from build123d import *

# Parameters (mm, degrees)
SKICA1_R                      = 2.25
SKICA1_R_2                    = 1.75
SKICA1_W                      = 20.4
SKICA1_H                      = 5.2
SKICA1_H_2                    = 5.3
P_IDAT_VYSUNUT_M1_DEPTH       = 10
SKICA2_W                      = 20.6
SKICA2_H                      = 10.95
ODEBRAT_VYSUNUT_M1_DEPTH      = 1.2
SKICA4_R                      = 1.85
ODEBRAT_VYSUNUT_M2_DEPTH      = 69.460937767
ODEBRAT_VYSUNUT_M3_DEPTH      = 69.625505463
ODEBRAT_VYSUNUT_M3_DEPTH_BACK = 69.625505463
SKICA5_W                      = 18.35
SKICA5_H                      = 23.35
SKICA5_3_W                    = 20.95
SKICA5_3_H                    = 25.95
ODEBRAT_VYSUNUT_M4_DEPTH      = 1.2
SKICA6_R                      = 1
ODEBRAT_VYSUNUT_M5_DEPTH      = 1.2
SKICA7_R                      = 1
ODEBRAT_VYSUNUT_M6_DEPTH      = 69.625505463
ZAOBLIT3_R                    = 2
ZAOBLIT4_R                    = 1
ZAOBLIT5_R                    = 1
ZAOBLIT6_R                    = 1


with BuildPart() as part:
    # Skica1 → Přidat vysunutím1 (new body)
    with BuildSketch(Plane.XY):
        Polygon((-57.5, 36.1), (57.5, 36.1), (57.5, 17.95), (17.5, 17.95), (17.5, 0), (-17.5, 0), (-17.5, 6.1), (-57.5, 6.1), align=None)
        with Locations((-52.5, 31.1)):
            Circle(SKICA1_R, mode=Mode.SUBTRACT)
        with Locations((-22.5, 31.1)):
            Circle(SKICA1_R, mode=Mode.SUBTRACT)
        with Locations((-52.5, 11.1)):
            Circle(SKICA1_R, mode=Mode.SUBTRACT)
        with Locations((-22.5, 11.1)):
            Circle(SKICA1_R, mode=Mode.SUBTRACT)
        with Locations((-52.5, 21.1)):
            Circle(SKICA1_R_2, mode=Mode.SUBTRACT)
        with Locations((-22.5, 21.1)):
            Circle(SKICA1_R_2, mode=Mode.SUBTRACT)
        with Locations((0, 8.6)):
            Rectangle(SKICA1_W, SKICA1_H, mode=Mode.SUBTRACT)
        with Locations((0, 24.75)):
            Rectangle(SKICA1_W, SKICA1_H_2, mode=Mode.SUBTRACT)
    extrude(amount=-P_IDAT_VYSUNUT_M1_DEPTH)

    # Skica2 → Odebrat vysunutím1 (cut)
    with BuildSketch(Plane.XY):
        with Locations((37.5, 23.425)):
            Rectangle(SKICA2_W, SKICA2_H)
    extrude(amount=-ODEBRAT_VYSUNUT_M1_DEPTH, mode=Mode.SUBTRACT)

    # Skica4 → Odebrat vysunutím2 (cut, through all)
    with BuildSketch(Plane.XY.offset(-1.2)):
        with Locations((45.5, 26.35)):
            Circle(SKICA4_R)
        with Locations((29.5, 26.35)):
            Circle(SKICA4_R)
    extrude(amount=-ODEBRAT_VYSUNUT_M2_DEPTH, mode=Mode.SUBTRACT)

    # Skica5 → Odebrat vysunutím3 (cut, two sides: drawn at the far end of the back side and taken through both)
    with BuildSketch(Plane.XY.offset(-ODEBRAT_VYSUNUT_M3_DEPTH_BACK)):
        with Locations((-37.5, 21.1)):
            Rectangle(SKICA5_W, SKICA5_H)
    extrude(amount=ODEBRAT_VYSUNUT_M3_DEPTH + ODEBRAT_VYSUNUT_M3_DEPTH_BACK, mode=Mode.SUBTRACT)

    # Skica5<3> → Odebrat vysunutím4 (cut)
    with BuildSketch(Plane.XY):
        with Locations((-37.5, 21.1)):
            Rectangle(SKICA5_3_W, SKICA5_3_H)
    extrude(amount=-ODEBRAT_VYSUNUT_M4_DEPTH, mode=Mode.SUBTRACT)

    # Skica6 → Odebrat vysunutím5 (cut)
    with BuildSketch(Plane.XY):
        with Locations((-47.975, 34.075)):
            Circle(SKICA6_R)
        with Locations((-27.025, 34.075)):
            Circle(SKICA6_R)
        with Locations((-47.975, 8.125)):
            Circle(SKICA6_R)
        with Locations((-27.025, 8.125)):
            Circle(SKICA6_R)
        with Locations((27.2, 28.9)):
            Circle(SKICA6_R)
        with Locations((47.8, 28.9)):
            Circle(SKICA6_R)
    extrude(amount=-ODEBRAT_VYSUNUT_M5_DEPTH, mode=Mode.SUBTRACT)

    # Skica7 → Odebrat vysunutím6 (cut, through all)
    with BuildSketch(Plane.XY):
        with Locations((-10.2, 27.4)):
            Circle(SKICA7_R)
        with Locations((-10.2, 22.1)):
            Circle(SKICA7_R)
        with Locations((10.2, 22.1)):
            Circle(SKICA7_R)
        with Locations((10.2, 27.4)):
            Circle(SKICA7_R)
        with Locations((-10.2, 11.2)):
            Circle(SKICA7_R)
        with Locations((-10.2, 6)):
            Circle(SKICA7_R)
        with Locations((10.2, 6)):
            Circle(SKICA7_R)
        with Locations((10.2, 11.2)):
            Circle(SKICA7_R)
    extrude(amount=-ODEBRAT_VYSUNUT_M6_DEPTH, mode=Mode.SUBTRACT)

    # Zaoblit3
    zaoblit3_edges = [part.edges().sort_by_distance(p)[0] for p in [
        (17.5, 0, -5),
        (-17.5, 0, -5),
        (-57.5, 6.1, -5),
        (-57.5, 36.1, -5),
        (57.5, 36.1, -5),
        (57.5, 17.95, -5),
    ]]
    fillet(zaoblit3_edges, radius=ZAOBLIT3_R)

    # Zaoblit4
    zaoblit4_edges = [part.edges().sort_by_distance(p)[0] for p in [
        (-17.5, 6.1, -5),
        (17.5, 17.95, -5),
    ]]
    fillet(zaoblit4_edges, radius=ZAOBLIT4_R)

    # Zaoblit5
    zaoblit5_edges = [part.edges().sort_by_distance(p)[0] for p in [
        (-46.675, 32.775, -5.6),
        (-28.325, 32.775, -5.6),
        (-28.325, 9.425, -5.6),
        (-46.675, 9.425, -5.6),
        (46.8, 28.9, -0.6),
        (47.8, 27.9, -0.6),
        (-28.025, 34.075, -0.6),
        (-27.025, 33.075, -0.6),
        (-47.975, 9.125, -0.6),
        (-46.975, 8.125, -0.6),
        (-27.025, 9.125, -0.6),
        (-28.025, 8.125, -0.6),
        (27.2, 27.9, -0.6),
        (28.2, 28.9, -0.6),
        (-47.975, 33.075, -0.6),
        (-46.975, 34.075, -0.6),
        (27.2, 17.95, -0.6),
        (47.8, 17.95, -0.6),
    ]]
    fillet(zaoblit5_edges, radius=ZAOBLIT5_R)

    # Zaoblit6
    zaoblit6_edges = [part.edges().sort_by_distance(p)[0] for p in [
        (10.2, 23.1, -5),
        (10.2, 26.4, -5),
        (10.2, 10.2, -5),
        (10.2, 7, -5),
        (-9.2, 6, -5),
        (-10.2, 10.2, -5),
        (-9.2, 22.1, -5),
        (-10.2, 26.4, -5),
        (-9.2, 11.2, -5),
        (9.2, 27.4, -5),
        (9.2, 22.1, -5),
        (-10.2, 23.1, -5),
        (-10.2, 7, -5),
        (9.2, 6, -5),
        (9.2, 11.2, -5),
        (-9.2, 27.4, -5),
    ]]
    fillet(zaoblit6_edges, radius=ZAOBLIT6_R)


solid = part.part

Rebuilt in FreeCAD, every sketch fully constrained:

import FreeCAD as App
import Part
import Sketcher
Q = App.Units.Quantity


def edges_at(feature, points):
    """Names of the edges that pass closest to the given points."""
    edges = feature.Shape.Edges
    near = lambda p: min(range(len(edges)), key=lambda i: edges[i].distToShape(Part.Vertex(*p))[0])
    return sorted({f"Edge{near(p) + 1}" for p in points})

doc = App.newDocument("Part")
body = doc.addObject("PartDesign::Body", "Body")

# Sketch on XY plane
sketch1 = body.newObject("Sketcher::SketchObject", "Sketch")
sketch1.AttachmentSupport = (doc.getObject("XY_Plane"), [""])
sketch1.MapMode = "FlatFace"
sketch1.addGeometry([
    Part.LineSegment(App.Vector(57.5, 36.1, 0), App.Vector(-57.5, 36.1, 0)),  # 0
    Part.LineSegment(App.Vector(-57.5, 36.1, 0), App.Vector(-57.5, 6.1, 0)),  # 1
    Part.LineSegment(App.Vector(-57.5, 6.1, 0), App.Vector(-17.5, 6.1, 0)),  # 2
    Part.LineSegment(App.Vector(-17.5, 6.1, 0), App.Vector(-17.5, 0, 0)),  # 3
    Part.LineSegment(App.Vector(-17.5, 0, 0), App.Vector(17.5, 0, 0)),  # 4
    Part.LineSegment(App.Vector(17.5, 0, 0), App.Vector(17.5, 17.9, 0)),  # 5
    Part.LineSegment(App.Vector(17.5, 17.9, 0), App.Vector(57.5, 17.9, 0)),  # 6
    Part.LineSegment(App.Vector(57.5, 17.9, 0), App.Vector(57.5, 36.1, 0)),  # 7
    Part.LineSegment(App.Vector(-10.2, 6, 0), App.Vector(-10.2, 11.2, 0)),  # 8
    Part.LineSegment(App.Vector(-10.2, 11.2, 0), App.Vector(10.2, 11.2, 0)),  # 9
    Part.LineSegment(App.Vector(10.2, 11.2, 0), App.Vector(10.2, 6, 0)),  # 10
    Part.LineSegment(App.Vector(10.2, 6, 0), App.Vector(-10.2, 6, 0)),  # 11
    Part.Circle(App.Vector(-22.5, 11.1, 0), App.Vector(0, 0, 1), 2.2),  # 12
    Part.Circle(App.Vector(-52.5, 11.1, 0), App.Vector(0, 0, 1), 2.2),  # 13
    Part.LineSegment(App.Vector(-10.2, 22.1, 0), App.Vector(-10.2, 27.4, 0)),  # 14
    Part.LineSegment(App.Vector(-10.2, 27.4, 0), App.Vector(10.2, 27.4, 0)),  # 15
    Part.LineSegment(App.Vector(10.2, 27.4, 0), App.Vector(10.2, 22.1, 0)),  # 16
    Part.LineSegment(App.Vector(10.2, 22.1, 0), App.Vector(-10.2, 22.1, 0)),  # 17
    Part.Circle(App.Vector(-22.5, 21.1, 0), App.Vector(0, 0, 1), 1.8),  # 18
    Part.Circle(App.Vector(-52.5, 21.1, 0), App.Vector(0, 0, 1), 1.8),  # 19
    Part.Circle(App.Vector(-22.5, 31.1, 0), App.Vector(0, 0, 1), 2.2),  # 20
    Part.Circle(App.Vector(-52.5, 31.1, 0), App.Vector(0, 0, 1), 2.2),  # 21
], False)
sketch1.addConstraint([
    Sketcher.Constraint("Coincident", 0, 2, 1, 1),
    Sketcher.Constraint("Coincident", 1, 2, 2, 1),
    Sketcher.Constraint("Coincident", 2, 2, 3, 1),
    Sketcher.Constraint("Coincident", 3, 2, 4, 1),
    Sketcher.Constraint("Coincident", 4, 2, 5, 1),
    Sketcher.Constraint("Coincident", 5, 2, 6, 1),
    Sketcher.Constraint("Coincident", 6, 2, 7, 1),
    Sketcher.Constraint("Coincident", 7, 2, 0, 1),
    Sketcher.Constraint("Coincident", 8, 2, 9, 1),
    Sketcher.Constraint("Coincident", 9, 2, 10, 1),
    Sketcher.Constraint("Coincident", 10, 2, 11, 1),
    Sketcher.Constraint("Coincident", 11, 2, 8, 1),
    Sketcher.Constraint("Coincident", 14, 2, 15, 1),
    Sketcher.Constraint("Coincident", 15, 2, 16, 1),
    Sketcher.Constraint("Coincident", 16, 2, 17, 1),
    Sketcher.Constraint("Coincident", 17, 2, 14, 1),
    Sketcher.Constraint("Horizontal", 0),
    Sketcher.Constraint("Vertical", 1),
    Sketcher.Constraint("Horizontal", 2),
    Sketcher.Constraint("Vertical", 3),
    Sketcher.Constraint("Horizontal", 4),
    Sketcher.Constraint("Vertical", 5),
    Sketcher.Constraint("Horizontal", 6),
    Sketcher.Constraint("Vertical", 7),
    Sketcher.Constraint("Vertical", 8),
    Sketcher.Constraint("Horizontal", 9),
    Sketcher.Constraint("Vertical", 10),
    Sketcher.Constraint("Horizontal", 11),
    Sketcher.Constraint("Vertical", 14),
    Sketcher.Constraint("Horizontal", 15),
    Sketcher.Constraint("Vertical", 16),
    Sketcher.Constraint("Horizontal", 17),
    Sketcher.Constraint("Equal", 12, 13),
    Sketcher.Constraint("Equal", 18, 19),
    Sketcher.Constraint("Equal", 13, 20),
    Sketcher.Constraint("Equal", 20, 21),
    Sketcher.Constraint("Symmetric", 3, 2, 4, 2, -1, 1),
    Sketcher.Constraint("Horizontal", 12, 3, 13, 3),
    Sketcher.Constraint("Horizontal", 18, 3, 19, 3),
    Sketcher.Constraint("Horizontal", 20, 3, 21, 3),
    Sketcher.Constraint("Vertical", 12, 3, 18, 3),
    Sketcher.Constraint("Vertical", 13, 3, 19, 3),
    Sketcher.Constraint("Vertical", 18, 3, 20, 3),
    Sketcher.Constraint("Vertical", 19, 3, 21, 3),
    Sketcher.Constraint("Vertical", 11, 2, 14, 2),
    Sketcher.Constraint("Vertical", 10, 2, 15, 2),
    Sketcher.Constraint("Equal", 2, 6),
    Sketcher.Constraint("Diameter", 12, Q("4.5 mm")),
    Sketcher.Constraint("Diameter", 18, Q("3.5 mm")),
    Sketcher.Constraint("DistanceX", 0, 2, 0, 1, Q("115 mm")),
    Sketcher.Constraint("DistanceX", 2, 1, 2, 2, Q("40 mm")),
    Sketcher.Constraint("DistanceY", 1, 2, 1, 1, Q("30 mm")),
    Sketcher.Constraint("DistanceX", 9, 1, 9, 2, Q("20.4 mm")),
    Sketcher.Constraint("DistanceY", 3, 2, 3, 1, Q("6.1 mm")),
    Sketcher.Constraint("DistanceY", 8, 1, 8, 2, Q("5.2 mm")),
    Sketcher.Constraint("DistanceY", 14, 1, 14, 2, Q("5.3 mm")),
    Sketcher.Constraint("DistanceY", -1, 1, 10, 2, Q("6 mm")),
    Sketcher.Constraint("DistanceX", 13, 3, 12, 3, Q("30 mm")),
    Sketcher.Constraint("DistanceY", 12, 3, 18, 3, Q("10 mm")),
    Sketcher.Constraint("DistanceY", 18, 3, 20, 3, Q("10 mm")),
    Sketcher.Constraint("DistanceX", 0, 2, 21, 3, Q("5 mm")),
    Sketcher.Constraint("DistanceY", 21, 3, 0, 2, Q("5 mm")),
    Sketcher.Constraint("DistanceY", 18, 3, 17, 2, Q("1 mm")),
    Sketcher.Constraint("DistanceY", 5, 1, 5, 2, Q("17.95 mm")),
    Sketcher.Constraint("DistanceX", 8, 2, -1, 1, Q("10.2 mm")),
])
pad1 = body.newObject("PartDesign::Pad", "Pad")
pad1.Profile = sketch1
pad1.Length = 10
pad1.Reversed = True

# Sketch on XY plane
sketch2 = body.newObject("Sketcher::SketchObject", "Sketch001")
sketch2.AttachmentSupport = (doc.getObject("XY_Plane"), [""])
sketch2.MapMode = "FlatFace"
sketch2.addGeometry([
    Part.LineSegment(App.Vector(27, 29, 0), App.Vector(27, 18, 0)),
    Part.LineSegment(App.Vector(27, 18, 0), App.Vector(48, 18, 0)),
    Part.LineSegment(App.Vector(48, 18, 0), App.Vector(48, 29, 0)),
    Part.LineSegment(App.Vector(48, 29, 0), App.Vector(27, 29, 0)),
], False)
sketch2.addConstraint([
    Sketcher.Constraint("Coincident", 0, 2, 1, 1),
    Sketcher.Constraint("Coincident", 1, 2, 2, 1),
    Sketcher.Constraint("Coincident", 2, 2, 3, 1),
    Sketcher.Constraint("Coincident", 3, 2, 0, 1),
    Sketcher.Constraint("Vertical", 0),
    Sketcher.Constraint("Horizontal", 1),
    Sketcher.Constraint("Vertical", 2),
    Sketcher.Constraint("Horizontal", 3),
    Sketcher.Constraint("DistanceX", 1, 1, 1, 2, Q("20.6 mm")),
    Sketcher.Constraint("DistanceY", 0, 2, 0, 1, Q("10.95 mm")),
    Sketcher.Constraint("DistanceX", -1, 1, 0, 2, Q("27.2 mm")),
    Sketcher.Constraint("DistanceY", -1, 1, 2, 2, Q("28.9 mm")),
])
pocket1 = body.newObject("PartDesign::Pocket", "Pocket")
pocket1.Profile = sketch2
pocket1.Length = 1.2

# Sketch on XY plane
sketch3 = body.newObject("Sketcher::SketchObject", "Sketch002")
sketch3.AttachmentSupport = (doc.getObject("XY_Plane"), [""])
sketch3.MapMode = "FlatFace"
sketch3.AttachmentOffset = App.Placement(App.Vector(0, 0, -1.2), App.Rotation())
sketch3.addGeometry([
    Part.Circle(App.Vector(45.5, 26.4, 0), App.Vector(0, 0, 1), 1.9),
    Part.Circle(App.Vector(29.5, 26.4, 0), App.Vector(0, 0, 1), 1.9),
], False)
sketch3.addConstraint([
    Sketcher.Constraint("Equal", 0, 1),
    Sketcher.Constraint("Horizontal", 0, 3, 1, 3),
    Sketcher.Constraint("Diameter", 0, Q("3.7 mm")),
    Sketcher.Constraint("DistanceX", 1, 3, 0, 3, Q("16 mm")),
    Sketcher.Constraint("DistanceX", -1, 1, 0, 3, Q("45.5 mm")),
    Sketcher.Constraint("DistanceY", -1, 1, 0, 3, Q("26.35 mm")),
])
pocket2 = body.newObject("PartDesign::Pocket", "Pocket001")
pocket2.Profile = sketch3
pocket2.Type = "ThroughAll"

# Sketch on XY plane
sketch4 = body.newObject("Sketcher::SketchObject", "Sketch003")
sketch4.AttachmentSupport = (doc.getObject("XY_Plane"), [""])
sketch4.MapMode = "FlatFace"
sketch4.addGeometry([
    Part.LineSegment(App.Vector(-47, 33, 0), App.Vector(-47, 9, 0)),
    Part.LineSegment(App.Vector(-47, 9, 0), App.Vector(-28, 9, 0)),
    Part.LineSegment(App.Vector(-28, 9, 0), App.Vector(-28, 33, 0)),
    Part.LineSegment(App.Vector(-28, 33, 0), App.Vector(-47, 33, 0)),
], False)
sketch4.addConstraint([
    Sketcher.Constraint("Coincident", 0, 2, 1, 1),
    Sketcher.Constraint("Coincident", 1, 2, 2, 1),
    Sketcher.Constraint("Coincident", 2, 2, 3, 1),
    Sketcher.Constraint("Coincident", 3, 2, 0, 1),
    Sketcher.Constraint("Vertical", 0),
    Sketcher.Constraint("Horizontal", 1),
    Sketcher.Constraint("Vertical", 2),
    Sketcher.Constraint("Horizontal", 3),
    Sketcher.Constraint("DistanceX", 1, 1, 1, 2, Q("18.35 mm")),
    Sketcher.Constraint("DistanceY", 0, 2, 0, 1, Q("23.35 mm")),
    Sketcher.Constraint("DistanceX", 0, 2, -1, 1, Q("46.675 mm")),
    Sketcher.Constraint("DistanceY", -1, 1, 0, 2, Q("9.425 mm")),
])
pocket3 = body.newObject("PartDesign::Pocket", "Pocket002")
pocket3.Profile = sketch4
pocket3.Type = "ThroughAll"
pocket3.Midplane = True

# Sketch on XY plane
sketch5 = body.newObject("Sketcher::SketchObject", "Sketch004")
sketch5.AttachmentSupport = (doc.getObject("XY_Plane"), [""])
sketch5.MapMode = "FlatFace"
sketch5.addGeometry([
    Part.LineSegment(App.Vector(-48, 34, 0), App.Vector(-48, 8, 0)),
    Part.LineSegment(App.Vector(-48, 8, 0), App.Vector(-27, 8, 0)),
    Part.LineSegment(App.Vector(-27, 8, 0), App.Vector(-27, 34, 0)),
    Part.LineSegment(App.Vector(-27, 34, 0), App.Vector(-48, 34, 0)),
], False)
sketch5.addConstraint([
    Sketcher.Constraint("Coincident", 0, 2, 1, 1),
    Sketcher.Constraint("Coincident", 1, 2, 2, 1),
    Sketcher.Constraint("Coincident", 2, 2, 3, 1),
    Sketcher.Constraint("Coincident", 3, 2, 0, 1),
    Sketcher.Constraint("Vertical", 0),
    Sketcher.Constraint("Horizontal", 1),
    Sketcher.Constraint("Vertical", 2),
    Sketcher.Constraint("Horizontal", 3),
    Sketcher.Constraint("DistanceX", 1, 1, 1, 2, Q("20.95 mm")),
    Sketcher.Constraint("DistanceY", 0, 2, 0, 1, Q("25.95 mm")),
    Sketcher.Constraint("DistanceX", 0, 2, -1, 1, Q("47.975 mm")),
    Sketcher.Constraint("DistanceY", -1, 1, 0, 2, Q("8.125 mm")),
])
pocket4 = body.newObject("PartDesign::Pocket", "Pocket003")
pocket4.Profile = sketch5
pocket4.Length = 1.2

# Sketch on XY plane
sketch6 = body.newObject("Sketcher::SketchObject", "Sketch005")
sketch6.AttachmentSupport = (doc.getObject("XY_Plane"), [""])
sketch6.MapMode = "FlatFace"
sketch6.addGeometry([
    Part.Circle(App.Vector(-48, 34.1, 0), App.Vector(0, 0, 1), 1),  # 0
    Part.Circle(App.Vector(-27, 34.1, 0), App.Vector(0, 0, 1), 1),  # 1
    Part.Circle(App.Vector(-48, 8.1, 0), App.Vector(0, 0, 1), 1),  # 2
    Part.Circle(App.Vector(-27, 8.1, 0), App.Vector(0, 0, 1), 1),  # 3
    Part.Circle(App.Vector(27.2, 28.9, 0), App.Vector(0, 0, 1), 1),  # 4
    Part.Circle(App.Vector(47.8, 28.9, 0), App.Vector(0, 0, 1), 1),  # 5
], False)
sketch6.addConstraint([
    Sketcher.Constraint("Equal", 0, 1),
    Sketcher.Constraint("Equal", 1, 2),
    Sketcher.Constraint("Equal", 2, 3),
    Sketcher.Constraint("Equal", 3, 4),
    Sketcher.Constraint("Equal", 4, 5),
    Sketcher.Constraint("Horizontal", 0, 3, 1, 3),
    Sketcher.Constraint("Horizontal", 2, 3, 3, 3),
    Sketcher.Constraint("Horizontal", 4, 3, 5, 3),
    Sketcher.Constraint("Vertical", 0, 3, 2, 3),
    Sketcher.Constraint("Vertical", 1, 3, 3, 3),
    Sketcher.Constraint("Diameter", 0, Q("2 mm")),
    Sketcher.Constraint("DistanceX", -1, 1, 4, 3, Q("27.2 mm")),
    Sketcher.Constraint("DistanceY", -1, 1, 4, 3, Q("28.9 mm")),
    Sketcher.Constraint("DistanceX", -1, 1, 5, 3, Q("47.8 mm")),
    Sketcher.Constraint("DistanceX", 0, 3, 1, 3, Q("20.95 mm")),
    Sketcher.Constraint("DistanceY", 2, 3, 0, 3, Q("25.95 mm")),
    Sketcher.Constraint("DistanceX", 0, 3, -1, 1, Q("47.975 mm")),
    Sketcher.Constraint("DistanceY", -1, 1, 0, 3, Q("34.075 mm")),
])
pocket5 = body.newObject("PartDesign::Pocket", "Pocket004")
pocket5.Profile = sketch6
pocket5.Length = 1.2

# Sketch on XY plane
sketch7 = body.newObject("Sketcher::SketchObject", "Sketch006")
sketch7.AttachmentSupport = (doc.getObject("XY_Plane"), [""])
sketch7.MapMode = "FlatFace"
sketch7.addGeometry([
    Part.Circle(App.Vector(-10.2, 27.4, 0), App.Vector(0, 0, 1), 1),  # 0
    Part.Circle(App.Vector(-10.2, 22.1, 0), App.Vector(0, 0, 1), 1),  # 1
    Part.Circle(App.Vector(10.2, 22.1, 0), App.Vector(0, 0, 1), 1),  # 2
    Part.Circle(App.Vector(10.2, 27.4, 0), App.Vector(0, 0, 1), 1),  # 3
    Part.Circle(App.Vector(-10.2, 11.2, 0), App.Vector(0, 0, 1), 1),  # 4
    Part.Circle(App.Vector(-10.2, 6, 0), App.Vector(0, 0, 1), 1),  # 5
    Part.Circle(App.Vector(10.2, 6, 0), App.Vector(0, 0, 1), 1),  # 6
    Part.Circle(App.Vector(10.2, 11.2, 0), App.Vector(0, 0, 1), 1),  # 7
], False)
sketch7.addConstraint([
    Sketcher.Constraint("Equal", 0, 1),
    Sketcher.Constraint("Equal", 1, 2),
    Sketcher.Constraint("Equal", 2, 3),
    Sketcher.Constraint("Equal", 3, 4),
    Sketcher.Constraint("Equal", 4, 5),
    Sketcher.Constraint("Equal", 5, 6),
    Sketcher.Constraint("Equal", 6, 7),
    Sketcher.Constraint("Symmetric", 1, 3, 2, 3, -2),
    Sketcher.Constraint("Symmetric", 0, 3, 3, 3, -2),
    Sketcher.Constraint("Symmetric", 5, 3, 6, 3, -2),
    Sketcher.Constraint("Symmetric", 4, 3, 7, 3, -2),
    Sketcher.Constraint("Vertical", 0, 3, 1, 3),
    Sketcher.Constraint("Vertical", 1, 3, 4, 3),
    Sketcher.Constraint("Vertical", 4, 3, 5, 3),
    Sketcher.Constraint("Diameter", 0, Q("2 mm")),
    Sketcher.Constraint("DistanceY", -1, 1, 5, 3, Q("6 mm")),
    Sketcher.Constraint("DistanceX", 0, 3, -1, 1, Q("10.2 mm")),
    Sketcher.Constraint("DistanceY", -1, 1, 0, 3, Q("27.4 mm")),
    Sketcher.Constraint("DistanceY", -1, 1, 1, 3, Q("22.1 mm")),
    Sketcher.Constraint("DistanceY", -1, 1, 4, 3, Q("11.2 mm")),
])
pocket6 = body.newObject("PartDesign::Pocket", "Pocket005")
pocket6.Profile = sketch7
pocket6.Type = "ThroughAll"
doc.recompute()

fillet = body.newObject("PartDesign::Fillet", "Fillet")
fillet.Base = (pocket6, edges_at(pocket6, [
    (17.5, 0, -5),
    (-17.5, 0, -5),
    (-57.5, 6.1, -5),
    (-57.5, 36.1, -5),
    (57.5, 36.1, -5),
    (57.5, 17.95, -5),
]))
fillet.Radius = 2
doc.recompute()

fillet2 = body.newObject("PartDesign::Fillet", "Fillet001")
fillet2.Base = (fillet, edges_at(fillet, [(-17.5, 6.1, -5), (17.5, 17.95, -5)]))
fillet2.Radius = 1
doc.recompute()

fillet3 = body.newObject("PartDesign::Fillet", "Fillet002")
fillet3.Base = (fillet2, edges_at(fillet2, [
    (-46.675, 32.775, -5.6),
    (-28.325, 32.775, -5.6),
    (-28.325, 9.425, -5.6),
    (-46.675, 9.425, -5.6),
    (46.8, 28.9, -0.6),
    (47.8, 27.9, -0.6),
    (-28.025, 34.075, -0.6),
    (-27.025, 33.075, -0.6),
    (-47.975, 9.125, -0.6),
    (-46.975, 8.125, -0.6),
    (-27.025, 9.125, -0.6),
    (-28.025, 8.125, -0.6),
    (27.2, 27.9, -0.6),
    (28.2, 28.9, -0.6),
    (-47.975, 33.075, -0.6),
    (-46.975, 34.075, -0.6),
    (27.2, 17.95, -0.6),
    (47.8, 17.95, -0.6),
]))
fillet3.Radius = 1
doc.recompute()

fillet4 = body.newObject("PartDesign::Fillet", "Fillet003")
fillet4.Base = (fillet3, edges_at(fillet3, [
    (10.2, 23.1, -5),
    (10.2, 26.4, -5),
    (10.2, 10.2, -5),
    (10.2, 7, -5),
    (-9.2, 6, -5),
    (-10.2, 10.2, -5),
    (-9.2, 22.1, -5),
    (-10.2, 26.4, -5),
    (-9.2, 11.2, -5),
    (9.2, 27.4, -5),
    (9.2, 22.1, -5),
    (-10.2, 23.1, -5),
    (-10.2, 7, -5),
    (9.2, 6, -5),
    (9.2, 11.2, -5),
    (-9.2, 27.4, -5),
]))
fillet4.Radius = 1

doc.recompute()
